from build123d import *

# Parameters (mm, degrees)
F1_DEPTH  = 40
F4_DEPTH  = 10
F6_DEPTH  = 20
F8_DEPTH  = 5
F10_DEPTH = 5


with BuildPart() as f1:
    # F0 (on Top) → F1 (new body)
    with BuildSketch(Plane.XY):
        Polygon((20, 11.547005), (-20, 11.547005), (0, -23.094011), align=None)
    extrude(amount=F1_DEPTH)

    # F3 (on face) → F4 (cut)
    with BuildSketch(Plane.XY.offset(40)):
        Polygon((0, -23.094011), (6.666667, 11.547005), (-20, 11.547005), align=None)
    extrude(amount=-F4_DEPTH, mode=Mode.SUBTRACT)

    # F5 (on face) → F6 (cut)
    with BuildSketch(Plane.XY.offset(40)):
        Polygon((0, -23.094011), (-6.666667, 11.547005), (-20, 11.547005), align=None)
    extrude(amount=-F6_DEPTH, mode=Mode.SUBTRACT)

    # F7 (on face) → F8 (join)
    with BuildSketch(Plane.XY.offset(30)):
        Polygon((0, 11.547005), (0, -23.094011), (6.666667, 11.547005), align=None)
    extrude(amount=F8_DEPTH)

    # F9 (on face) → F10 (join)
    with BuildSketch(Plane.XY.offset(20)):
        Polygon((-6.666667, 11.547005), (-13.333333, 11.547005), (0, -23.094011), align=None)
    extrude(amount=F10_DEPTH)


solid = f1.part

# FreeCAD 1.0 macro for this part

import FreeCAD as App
import Part
import Sketcher
Q = App.Units.Quantity

doc = App.newDocument("Part")
body = doc.addObject("PartDesign::Body", "Body")

# Sketch on XY plane
sketch1 = body.newObject("Sketcher::SketchObject", "Sketch")
sketch1.AttachmentSupport = (doc.getObject("XY_Plane"), [""])
sketch1.MapMode = "FlatFace"
sketch1.addGeometry([
    Part.LineSegment(App.Vector(20, 11.547005, 0), App.Vector(-20, 11.547005, 0)),
    Part.LineSegment(App.Vector(-20, 11.547005, 0), App.Vector(0, -23.094011, 0)),
    Part.LineSegment(App.Vector(0, -23.094011, 0), App.Vector(20, 11.547005, 0)),
], False)
sketch1.addConstraint([
    Sketcher.Constraint("Coincident", 0, 2, 1, 1),
    Sketcher.Constraint("Coincident", 1, 2, 2, 1),
    Sketcher.Constraint("Coincident", 2, 2, 0, 1),
    Sketcher.Constraint("Horizontal", 0),
    Sketcher.Constraint("PointOnObject", 1, 2, -2),
    Sketcher.Constraint("Equal", 1, 2),
    Sketcher.Constraint("DistanceX", 0, 2, 0, 1, 40.0),
    Sketcher.Constraint("Angle", 1, Q("-60 deg")),
    Sketcher.Constraint("DistanceY", 1, 2, -1, 1, 23.094011),
])
pad1 = body.newObject("PartDesign::Pad", "Pad")
pad1.Profile = sketch1
pad1.Length = 40

# Sketch on XY plane
sketch2 = body.newObject("Sketcher::SketchObject", "Sketch001")
sketch2.AttachmentSupport = (doc.getObject("XY_Plane"), [""])
sketch2.MapMode = "FlatFace"
sketch2.AttachmentOffset = App.Placement(App.Vector(0, 0, 40), App.Rotation())
sketch2.addGeometry([
    Part.LineSegment(App.Vector(0, -23.094011, 0), App.Vector(6.666667, 11.547005, 0)),
    Part.LineSegment(App.Vector(6.666667, 11.547005, 0), App.Vector(-20, 11.547005, 0)),
    Part.LineSegment(App.Vector(-20, 11.547005, 0), App.Vector(0, -23.094011, 0)),
], False)
sketch2.addConstraint([
    Sketcher.Constraint("Coincident", 0, 2, 1, 1),
    Sketcher.Constraint("Coincident", 1, 2, 2, 1),
    Sketcher.Constraint("Coincident", 2, 2, 0, 1),
    Sketcher.Constraint("Horizontal", 1),
    Sketcher.Constraint("PointOnObject", 2, 2, -2),
    Sketcher.Constraint("Angle", 2, Q("-60 deg")),
    Sketcher.Constraint("Distance", 2, 40.0),
    Sketcher.Constraint("DistanceX", 1, 2, 1, 1, 26.666667),
    Sketcher.Constraint("DistanceY", 2, 2, -1, 1, 23.094011),
])
pocket1 = body.newObject("PartDesign::Pocket", "Pocket")
pocket1.Profile = sketch2
pocket1.Length = 10

# Sketch on XY plane
sketch3 = body.newObject("Sketcher::SketchObject", "Sketch002")
sketch3.AttachmentSupport = (doc.getObject("XY_Plane"), [""])
sketch3.MapMode = "FlatFace"
sketch3.AttachmentOffset = App.Placement(App.Vector(0, 0, 40), App.Rotation())
sketch3.addGeometry([
    Part.LineSegment(App.Vector(0, -23.094011, 0), App.Vector(-6.666667, 11.547005, 0)),
    Part.LineSegment(App.Vector(-6.666667, 11.547005, 0), App.Vector(-20, 11.547005, 0)),
    Part.LineSegment(App.Vector(-20, 11.547005, 0), App.Vector(0, -23.094011, 0)),
], False)
sketch3.addConstraint([
    Sketcher.Constraint("Coincident", 0, 2, 1, 1),
    Sketcher.Constraint("Coincident", 1, 2, 2, 1),
    Sketcher.Constraint("Coincident", 2, 2, 0, 1),
    Sketcher.Constraint("Horizontal", 1),
    Sketcher.Constraint("PointOnObject", 2, 2, -2),
    Sketcher.Constraint("Angle", 2, Q("-60 deg")),
    Sketcher.Constraint("Distance", 2, 40.0),
    Sketcher.Constraint("DistanceX", 1, 2, 1, 1, 13.333333),
    Sketcher.Constraint("DistanceY", 2, 2, -1, 1, 23.094011),
])
pocket2 = body.newObject("PartDesign::Pocket", "Pocket001")
pocket2.Profile = sketch3
pocket2.Length = 20

# Sketch on XY plane
sketch4 = body.newObject("Sketcher::SketchObject", "Sketch003")
sketch4.AttachmentSupport = (doc.getObject("XY_Plane"), [""])
sketch4.MapMode = "FlatFace"
sketch4.AttachmentOffset = App.Placement(App.Vector(0, 0, 30), App.Rotation())
sketch4.addGeometry([
    Part.LineSegment(App.Vector(0, 11.547005, 0), App.Vector(0, -23.094011, 0)),
    Part.LineSegment(App.Vector(0, -23.094011, 0), App.Vector(6.666667, 11.547005, 0)),
    Part.LineSegment(App.Vector(6.666667, 11.547005, 0), App.Vector(0, 11.547005, 0)),
], False)
sketch4.addConstraint([
    Sketcher.Constraint("Coincident", 0, 2, 1, 1),
    Sketcher.Constraint("Coincident", 1, 2, 2, 1),
    Sketcher.Constraint("Coincident", 2, 2, 0, 1),
    Sketcher.Constraint("Vertical", 0),
    Sketcher.Constraint("Horizontal", 2),
    Sketcher.Constraint("PointOnObject", 0, 2, -2),
    Sketcher.Constraint("DistanceX", 2, 2, 2, 1, 6.666667),
    Sketcher.Constraint("DistanceY", 0, 2, 0, 1, 34.641016),
    Sketcher.Constraint("DistanceY", 0, 2, -1, 1, 23.094011),
])
pad2 = body.newObject("PartDesign::Pad", "Pad001")
pad2.Profile = sketch4
pad2.Length = 5

# Sketch on XY plane
sketch5 = body.newObject("Sketcher::SketchObject", "Sketch004")
sketch5.AttachmentSupport = (doc.getObject("XY_Plane"), [""])
sketch5.MapMode = "FlatFace"
sketch5.AttachmentOffset = App.Placement(App.Vector(0, 0, 20), App.Rotation())
sketch5.addGeometry([
    Part.LineSegment(App.Vector(-6.666667, 11.547005, 0), App.Vector(-13.333333, 11.547005, 0)),
    Part.LineSegment(App.Vector(-13.333333, 11.547005, 0), App.Vector(0, -23.094011, 0)),
    Part.LineSegment(App.Vector(0, -23.094011, 0), App.Vector(-6.666667, 11.547005, 0)),
], False)
sketch5.addConstraint([
    Sketcher.Constraint("Coincident", 0, 2, 1, 1),
    Sketcher.Constraint("Coincident", 1, 2, 2, 1),
    Sketcher.Constraint("Coincident", 2, 2, 0, 1),
    Sketcher.Constraint("Horizontal", 0),
    Sketcher.Constraint("PointOnObject", 1, 2, -2),
    Sketcher.Constraint("Distance", 1, 37.118429),
    Sketcher.Constraint("DistanceX", 0, 2, 0, 1, 6.666666),
    Sketcher.Constraint("DistanceY", 1, 2, -1, 1, 23.094011),
    Sketcher.Constraint("Distance", 2, 35.276684),
])
pad3 = body.newObject("PartDesign::Pad", "Pad002")
pad3.Profile = sketch5
pad3.Length = 5

doc.recompute()
